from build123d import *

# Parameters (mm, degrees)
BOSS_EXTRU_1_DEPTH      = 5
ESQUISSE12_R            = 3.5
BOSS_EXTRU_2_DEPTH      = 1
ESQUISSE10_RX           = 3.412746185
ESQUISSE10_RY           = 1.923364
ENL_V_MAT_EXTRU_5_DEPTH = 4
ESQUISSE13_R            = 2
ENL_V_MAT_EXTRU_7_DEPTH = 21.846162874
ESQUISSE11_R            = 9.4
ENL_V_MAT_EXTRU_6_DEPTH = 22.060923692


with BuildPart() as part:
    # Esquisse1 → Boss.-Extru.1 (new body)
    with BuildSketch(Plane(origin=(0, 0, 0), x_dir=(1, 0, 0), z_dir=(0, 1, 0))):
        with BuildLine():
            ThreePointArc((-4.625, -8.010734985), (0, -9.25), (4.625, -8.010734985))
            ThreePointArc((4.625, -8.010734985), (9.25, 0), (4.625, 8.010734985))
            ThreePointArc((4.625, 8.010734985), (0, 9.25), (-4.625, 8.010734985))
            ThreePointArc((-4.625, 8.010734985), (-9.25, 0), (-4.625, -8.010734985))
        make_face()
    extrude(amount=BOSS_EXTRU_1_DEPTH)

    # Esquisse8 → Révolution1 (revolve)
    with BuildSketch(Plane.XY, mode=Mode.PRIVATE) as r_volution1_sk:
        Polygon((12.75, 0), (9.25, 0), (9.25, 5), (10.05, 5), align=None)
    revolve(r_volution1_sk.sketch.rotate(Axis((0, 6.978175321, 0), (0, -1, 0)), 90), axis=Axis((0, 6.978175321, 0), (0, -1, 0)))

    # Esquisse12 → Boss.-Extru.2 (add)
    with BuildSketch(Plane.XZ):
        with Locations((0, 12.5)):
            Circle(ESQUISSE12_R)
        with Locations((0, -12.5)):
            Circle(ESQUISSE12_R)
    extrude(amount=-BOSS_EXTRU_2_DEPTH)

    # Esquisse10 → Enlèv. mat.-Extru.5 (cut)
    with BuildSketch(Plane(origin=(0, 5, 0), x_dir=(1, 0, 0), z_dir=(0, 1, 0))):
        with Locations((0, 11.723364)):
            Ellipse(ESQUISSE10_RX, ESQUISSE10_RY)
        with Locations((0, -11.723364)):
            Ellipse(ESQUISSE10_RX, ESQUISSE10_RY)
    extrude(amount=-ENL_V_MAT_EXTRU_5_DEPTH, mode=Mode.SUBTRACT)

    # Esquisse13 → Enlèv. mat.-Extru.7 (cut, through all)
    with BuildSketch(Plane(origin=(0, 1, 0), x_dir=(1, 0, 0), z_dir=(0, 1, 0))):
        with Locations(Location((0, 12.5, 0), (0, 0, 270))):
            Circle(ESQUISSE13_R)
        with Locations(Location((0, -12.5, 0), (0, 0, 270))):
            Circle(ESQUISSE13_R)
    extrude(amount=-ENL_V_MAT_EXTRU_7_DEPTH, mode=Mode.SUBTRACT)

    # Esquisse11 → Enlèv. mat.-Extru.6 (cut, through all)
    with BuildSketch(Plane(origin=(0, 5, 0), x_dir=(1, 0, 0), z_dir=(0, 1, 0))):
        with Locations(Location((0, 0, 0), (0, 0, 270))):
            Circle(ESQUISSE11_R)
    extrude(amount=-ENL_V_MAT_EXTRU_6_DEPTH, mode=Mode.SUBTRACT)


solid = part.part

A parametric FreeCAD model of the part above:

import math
import FreeCAD as App
import Part
import Sketcher

V = App.Vector
Q = App.Units.Quantity


def add_polygon(sketch, points):
    """Adds a closed chain of lines whose ends are joined by coincident constraints."""
    first, n = sketch.GeometryCount, len(points)
    for a, b in zip(points, points[1:] + points[:1]):
        sketch.addGeometry(Part.LineSegment(App.Vector(*a, 0), App.Vector(*b, 0)), False)
    for i in range(n):
        sketch.addConstraint(Sketcher.Constraint("Coincident", first + i, 2, first + (i + 1) % n, 1))

doc = App.newDocument("Part")
body = doc.addObject("PartDesign::Body", "Body")

# Sketch on XZ plane
sketch1 = body.newObject("Sketcher::SketchObject", "Sketch")
sketch1.AttachmentSupport = (doc.getObject("XZ_Plane"), [""])
sketch1.MapMode = "FlatFace"
sketch1.addGeometry(Part.ArcOfCircle(Part.Circle(V(0, 0, 0), V(0, 0, 1), 9.25), math.radians(60), math.radians(120)), False)
sketch1.addGeometry(Part.ArcOfCircle(Part.Circle(V(0, 0, 0), V(0, 0, 1), 9.25), math.radians(-60), math.radians(60)), False)
sketch1.addGeometry(Part.ArcOfCircle(Part.Circle(V(0, 0, 0), V(0, 0, 1), 9.25), math.radians(-120), math.radians(-60)), False)
sketch1.addGeometry(Part.ArcOfCircle(Part.Circle(V(0, 0, 0), V(0, 0, 1), 9.25), math.radians(120), math.radians(240)), False)
sketch1.addConstraint(Sketcher.Constraint("Tangent", 0, 1, 1, 2))
sketch1.addConstraint(Sketcher.Constraint("Tangent", 1, 1, 2, 2))
sketch1.addConstraint(Sketcher.Constraint("Tangent", 2, 1, 3, 2))
sketch1.addConstraint(Sketcher.Constraint("Tangent", 3, 1, 0, 2))
sketch1.addConstraint(Sketcher.Constraint("Coincident", 0, 3, -1, 1))
sketch1.addConstraint(Sketcher.Constraint("Equal", 0, 1))
sketch1.addConstraint(Sketcher.Constraint("Horizontal", 1, 1, 2, 1))
sketch1.addConstraint(Sketcher.Constraint("Horizontal", 0, 1, 3, 1))
sketch1.addConstraint(Sketcher.Constraint("Vertical", 0, 1, 1, 1))
sketch1.addConstraint(Sketcher.Constraint("Radius", 0, Q("9.25 mm")))
sketch1.addConstraint(Sketcher.Constraint("DistanceX", 2, 1, 1, 1, Q("9.25 mm")))
pad1 = body.newObject("PartDesign::Pad", "Pad")
pad1.Profile = sketch1
pad1.Length = 5
pad1.Reversed = True

# Sketch on XY plane
sketch2 = body.newObject("Sketcher::SketchObject", "Sketch001")
sketch2.AttachmentSupport = (doc.getObject("XY_Plane"), [""])
sketch2.MapMode = "FlatFace"
add_polygon(sketch2, [(9.25, 0), (12.75, 0), (10.05, 5), (9.25, 5)])  # lines 0-3
sketch2.addConstraint(Sketcher.Constraint("Horizontal", 0))
sketch2.addConstraint(Sketcher.Constraint("Horizontal", 2))
sketch2.addConstraint(Sketcher.Constraint("Vertical", 3))
sketch2.addConstraint(Sketcher.Constraint("PointOnObject", 0, 2, -1))
sketch2.addConstraint(Sketcher.Constraint("DistanceY", 3, 2, 3, 1, Q("5 mm")))
sketch2.addConstraint(Sketcher.Constraint("DistanceX", 0, 1, 0, 2, Q("3.5 mm")))
sketch2.addConstraint(Sketcher.Constraint("DistanceX", 2, 2, 2, 1, Q("0.8 mm")))
sketch2.addConstraint(Sketcher.Constraint("DistanceX", -1, 1, 0, 2, Q("12.75 mm")))
revolution = body.newObject("PartDesign::Revolution", "Revolution")
revolution.Profile = sketch2
revolution.ReferenceAxis = (sketch2, ["V_Axis"])
revolution.Angle = 360

# Sketch on XZ plane
sketch3 = body.newObject("Sketcher::SketchObject", "Sketch002")
sketch3.AttachmentSupport = (doc.getObject("XZ_Plane"), [""])
sketch3.MapMode = "FlatFace"
sketch3.addGeometry(Part.Circle(V(0, 12.5, 0), V(0, 0, 1), 3.5), False)
sketch3.addGeometry(Part.Circle(V(0, -12.5, 0), V(0, 0, 1), 3.5), False)
sketch3.addConstraint(Sketcher.Constraint("Equal", 0, 1))
sketch3.addConstraint(Sketcher.Constraint("Symmetric", 0, 3, 1, 3, -1, 1))
sketch3.addConstraint(Sketcher.Constraint("PointOnObject", 0, 3, -2))
sketch3.addConstraint(Sketcher.Constraint("Diameter", 0, Q("7 mm")))
sketch3.addConstraint(Sketcher.Constraint("DistanceY", 1, 3, 0, 3, Q("25 mm")))
pad2 = body.newObject("PartDesign::Pad", "Pad001")
pad2.Profile = sketch3
pad2.Length = 1
pad2.Reversed = True

# Sketch on XZ plane
sketch4 = body.newObject("Sketcher::SketchObject", "Sketch003")
sketch4.AttachmentSupport = (doc.getObject("XZ_Plane"), [""])
sketch4.MapMode = "FlatFace"
sketch4.AttachmentOffset = App.Placement(V(0, 0, -5), App.Rotation())
sketch4.addGeometry(Part.Ellipse(V(3.412746, -11.723364, 0), V(0, -9.8, 0), V(0, -11.723364, 0)), False)
sketch4.addGeometry(Part.Ellipse(V(3.412746, 11.723364, 0), V(0, 13.646728, 0), V(0, 11.723364, 0)), False)
sketch4.addConstraint(Sketcher.Constraint("Block", 0))
sketch4.addConstraint(Sketcher.Constraint("Block", 1))
pocket1 = body.newObject("PartDesign::Pocket", "Pocket")
pocket1.Profile = sketch4
pocket1.Length = 4
pocket1.Reversed = True

# Sketch on XZ plane
sketch5 = body.newObject("Sketcher::SketchObject", "Sketch004")
sketch5.AttachmentSupport = (doc.getObject("XZ_Plane"), [""])
sketch5.MapMode = "FlatFace"
sketch5.AttachmentOffset = App.Placement(V(0, 0, -1), App.Rotation())
sketch5.addGeometry(Part.Circle(V(0, -12.5, 0), V(0, 0, 1), 2), False)
sketch5.addGeometry(Part.Circle(V(0, 12.5, 0), V(0, 0, 1), 2), False)
sketch5.addConstraint(Sketcher.Constraint("Equal", 0, 1))
sketch5.addConstraint(Sketcher.Constraint("Symmetric", 0, 3, 1, 3, -1, 1))
sketch5.addConstraint(Sketcher.Constraint("PointOnObject", 0, 3, -2))
sketch5.addConstraint(Sketcher.Constraint("Diameter", 0, Q("4 mm")))
sketch5.addConstraint(Sketcher.Constraint("DistanceY", 0, 3, 1, 3, Q("25 mm")))
pocket2 = body.newObject("PartDesign::Pocket", "Pocket001")
pocket2.Profile = sketch5
pocket2.Type = "ThroughAll"
pocket2.Reversed = True

# Sketch on XZ plane
sketch6 = body.newObject("Sketcher::SketchObject", "Sketch005")
sketch6.AttachmentSupport = (doc.getObject("XZ_Plane"), [""])
sketch6.MapMode = "FlatFace"
sketch6.AttachmentOffset = App.Placement(V(0, 0, -5), App.Rotation())
sketch6.addGeometry(Part.Circle(V(0, 0, 0), V(0, 0, 1), 9.4), False)
sketch6.addConstraint(Sketcher.Constraint("Coincident", 0, 3, -1, 1))
sketch6.addConstraint(Sketcher.Constraint("Diameter", 0, Q("18.8 mm")))
pocket3 = body.newObject("PartDesign::Pocket", "Pocket002")
pocket3.Profile = sketch6
pocket3.Type = "ThroughAll"
pocket3.Reversed = True

doc.recompute()
